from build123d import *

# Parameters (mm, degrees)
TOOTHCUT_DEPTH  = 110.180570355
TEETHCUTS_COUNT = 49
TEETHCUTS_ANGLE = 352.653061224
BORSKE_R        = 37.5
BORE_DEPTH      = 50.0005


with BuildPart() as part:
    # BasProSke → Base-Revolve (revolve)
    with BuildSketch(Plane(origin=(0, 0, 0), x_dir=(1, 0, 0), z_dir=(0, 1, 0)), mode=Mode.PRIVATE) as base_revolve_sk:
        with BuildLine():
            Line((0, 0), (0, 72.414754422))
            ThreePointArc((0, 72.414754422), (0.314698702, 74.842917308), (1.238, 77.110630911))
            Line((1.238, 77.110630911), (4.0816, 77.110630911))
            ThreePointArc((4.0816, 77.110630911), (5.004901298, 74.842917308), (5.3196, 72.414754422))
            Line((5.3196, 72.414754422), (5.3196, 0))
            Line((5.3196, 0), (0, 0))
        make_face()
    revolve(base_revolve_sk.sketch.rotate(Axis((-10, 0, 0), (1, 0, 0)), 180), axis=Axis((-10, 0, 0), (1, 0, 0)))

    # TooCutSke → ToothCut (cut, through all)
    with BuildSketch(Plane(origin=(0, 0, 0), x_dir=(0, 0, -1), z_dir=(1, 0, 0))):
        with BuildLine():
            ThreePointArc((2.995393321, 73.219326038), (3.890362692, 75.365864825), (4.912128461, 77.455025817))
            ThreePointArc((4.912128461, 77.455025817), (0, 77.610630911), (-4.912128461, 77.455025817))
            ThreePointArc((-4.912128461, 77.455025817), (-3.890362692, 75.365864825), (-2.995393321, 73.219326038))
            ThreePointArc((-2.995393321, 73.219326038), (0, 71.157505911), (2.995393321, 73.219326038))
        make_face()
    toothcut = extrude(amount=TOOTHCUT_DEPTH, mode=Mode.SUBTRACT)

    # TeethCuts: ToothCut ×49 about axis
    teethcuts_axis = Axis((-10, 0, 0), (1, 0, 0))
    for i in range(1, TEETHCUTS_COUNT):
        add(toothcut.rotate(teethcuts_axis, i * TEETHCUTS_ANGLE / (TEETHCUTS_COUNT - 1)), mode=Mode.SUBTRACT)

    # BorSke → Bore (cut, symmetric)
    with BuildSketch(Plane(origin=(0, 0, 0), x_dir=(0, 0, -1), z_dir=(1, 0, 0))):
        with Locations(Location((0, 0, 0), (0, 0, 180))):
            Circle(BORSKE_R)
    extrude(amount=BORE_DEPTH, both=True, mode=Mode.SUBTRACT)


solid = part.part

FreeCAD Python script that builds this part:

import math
import FreeCAD as App
import Part
import Sketcher

V = App.Vector
Q = App.Units.Quantity

doc = App.newDocument("Part")
body = doc.addObject("PartDesign::Body", "Body")

# Sketch on XZ plane
sketch1 = doc.addObject("Sketcher::SketchObject", "Sketch")
body.addObject(sketch1)
sketch1.AttachmentSupport = (doc.XZ_Plane, [""])
sketch1.MapMode = "FlatFace"
sketch1.addGeometry([
    Part.LineSegment(V(0, -72.4, 0), V(0, 0, 0)),  # 0
    Part.LineSegment(V(0, 0, 0), V(5.3, 0, 0)),  # 1
    Part.LineSegment(V(5.3, 0, 0), V(5.3, -72.4, 0)),  # 2
    Part.ArcOfCircle(Part.Circle(V(-4.2, -72.4, 0), V(0, 0, 1), 9.5), math.radians(-30), math.radians(0)),  # 3
    Part.LineSegment(V(4.1, -77.1, 0), V(1.2, -77.1, 0)),  # 4
    Part.ArcOfCircle(Part.Circle(V(9.5, -72.4, 0), V(0, 0, 1), 9.5), math.radians(180), math.radians(210)),  # 5
], False)
sketch1.addConstraint([
    Sketcher.Constraint("Coincident", 0, 2, 1, 1),
    Sketcher.Constraint("Coincident", 1, 2, 2, 1),
    Sketcher.Constraint("Tangent", 2, 2, 3, 2),
    Sketcher.Constraint("Coincident", 3, 1, 4, 1),
    Sketcher.Constraint("Coincident", 4, 2, 5, 2),
    Sketcher.Constraint("Tangent", 5, 1, 0, 1),
    Sketcher.Constraint("Vertical", 0),
    Sketcher.Constraint("Horizontal", 1),
    Sketcher.Constraint("Vertical", 2),
    Sketcher.Constraint("Horizontal", 4),
    Sketcher.Constraint("Coincident", 0, 2, -1, 1),
    Sketcher.Constraint("Equal", 3, 5),
    Sketcher.Constraint("Horizontal", 3, 3, 5, 3),
    Sketcher.Constraint("Radius", 3, Q("0.375 in")),
    Sketcher.Constraint("DistanceX", 1, 1, 1, 2, Q("5.3196 mm")),
    Sketcher.Constraint("DistanceX", 4, 2, 4, 1, Q("2.8436 mm")),
    Sketcher.Constraint("DistanceY", 0, 1, 0, 2, Q("72.414754 mm")),
])
revolution = doc.addObject("PartDesign::Revolution", "Revolution")
body.addObject(revolution)
revolution.Profile = sketch1
revolution.ReferenceAxis = (sketch1, ["H_Axis"])
revolution.Angle = 360

# Sketch on YZ plane
sketch2 = doc.addObject("Sketcher::SketchObject", "Sketch001")
body.addObject(sketch2)
sketch2.AttachmentSupport = (doc.YZ_Plane, [""])
sketch2.MapMode = "FlatFace"
sketch2.addGeometry([
    Part.ArcOfCircle(Part.Circle(V(59.3, -39.3, 0), V(0, 0, 1), 38.9), math.radians(62.22), math.radians(69.08)),
    Part.ArcOfCircle(Part.Circle(V(0, 0, 0), V(0, 0, 1), 77.6), math.radians(-3.63), math.radians(3.63)),
    Part.ArcOfCircle(Part.Circle(V(59.3, 39.3, 0), V(0, 0, 1), 38.9), math.radians(-69.08), math.radians(-62.22)),
    Part.ArcOfCircle(Part.Circle(V(74.4, 0, 0), V(0, 0, 1), 3.2), math.radians(111), math.radians(249)),
], False)
sketch2.addConstraint([
    Sketcher.Constraint("Coincident", 0, 1, 1, 1),
    Sketcher.Constraint("Coincident", 1, 2, 2, 2),
    Sketcher.Constraint("Tangent", 2, 1, 3, 1),
    Sketcher.Constraint("Tangent", 3, 2, 0, 2),
    Sketcher.Constraint("Coincident", 1, 3, -1, 1),
    Sketcher.Constraint("Equal", 0, 2),
    Sketcher.Constraint("Symmetric", 0, 3, 2, 3, -1),
    Sketcher.Constraint("Radius", 0, Q("1.53 in")),
    Sketcher.Constraint("Radius", 1, Q("77.610631 mm")),
    Sketcher.Constraint("Radius", 3, Q("3.20675 mm")),
    Sketcher.Constraint("DistanceY", 0, 3, -1, 1, Q("39.296002 mm")),
    Sketcher.Constraint("DistanceX", 2, 1, 1, 2, Q("4.2357 mm")),
])
pocket1 = doc.addObject("PartDesign::Pocket", "Pocket")
body.addObject(pocket1)
pocket1.Profile = sketch2
pocket1.Type = "ThroughAll"
pocket1.Reversed = True
doc.recompute()

polarpattern = doc.addObject("PartDesign::PolarPattern", "PolarPattern")
body.addObject(polarpattern)
polarpattern.Originals = [pocket1]
polarpattern.Axis = (doc.X_Axis, [""])
polarpattern.Angle = 360
polarpattern.Occurrences = 49
body.Tip = polarpattern

# Sketch on YZ plane
sketch3 = doc.addObject("Sketcher::SketchObject", "Sketch002")
body.addObject(sketch3)
sketch3.AttachmentSupport = (doc.YZ_Plane, [""])
sketch3.MapMode = "FlatFace"
sketch3.addGeometry(Part.Circle(V(0, 0, 0), V(0, 0, 1), 38), False)
sketch3.addConstraint([
    Sketcher.Constraint("Coincident", 0, 3, -1, 1),
    Sketcher.Constraint("Diameter", 0, Q("75 mm")),
])
pocket2 = doc.addObject("PartDesign::Pocket", "Pocket001")
body.addObject(pocket2)
pocket2.Profile = sketch3
pocket2.Length = 100.001
pocket2.Midplane = True

doc.recompute()
